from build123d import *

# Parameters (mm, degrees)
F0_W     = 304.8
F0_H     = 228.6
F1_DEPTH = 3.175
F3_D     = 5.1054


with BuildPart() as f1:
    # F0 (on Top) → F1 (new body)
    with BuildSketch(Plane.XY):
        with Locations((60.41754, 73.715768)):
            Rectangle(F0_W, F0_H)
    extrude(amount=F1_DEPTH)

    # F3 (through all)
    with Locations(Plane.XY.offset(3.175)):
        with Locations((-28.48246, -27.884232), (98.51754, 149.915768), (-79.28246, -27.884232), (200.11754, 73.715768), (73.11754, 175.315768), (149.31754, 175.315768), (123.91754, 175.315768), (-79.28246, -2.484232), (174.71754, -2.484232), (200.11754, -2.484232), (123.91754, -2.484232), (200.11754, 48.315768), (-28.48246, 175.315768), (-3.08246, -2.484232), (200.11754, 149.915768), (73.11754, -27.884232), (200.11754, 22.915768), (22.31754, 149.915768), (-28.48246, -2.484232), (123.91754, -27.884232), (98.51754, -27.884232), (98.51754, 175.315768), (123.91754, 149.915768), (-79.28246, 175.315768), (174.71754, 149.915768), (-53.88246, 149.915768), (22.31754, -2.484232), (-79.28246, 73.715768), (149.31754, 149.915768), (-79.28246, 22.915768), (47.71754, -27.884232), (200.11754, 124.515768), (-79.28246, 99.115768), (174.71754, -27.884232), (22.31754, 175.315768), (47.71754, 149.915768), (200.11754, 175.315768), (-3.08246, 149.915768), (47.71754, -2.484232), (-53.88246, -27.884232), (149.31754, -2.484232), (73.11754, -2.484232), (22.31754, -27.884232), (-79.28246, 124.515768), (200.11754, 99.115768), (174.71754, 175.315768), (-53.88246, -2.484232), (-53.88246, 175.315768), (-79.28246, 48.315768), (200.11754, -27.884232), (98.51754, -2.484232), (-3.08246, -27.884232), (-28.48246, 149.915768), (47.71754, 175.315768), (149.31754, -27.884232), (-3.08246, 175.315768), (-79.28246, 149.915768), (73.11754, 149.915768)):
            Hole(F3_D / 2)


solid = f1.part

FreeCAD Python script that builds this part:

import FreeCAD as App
import Part
import Sketcher
Q = App.Units.Quantity


def add_polygon(sketch, points):
    """Adds a closed chain of lines whose ends are joined by coincident constraints."""
    first, n = sketch.GeometryCount, len(points)
    for a, b in zip(points, points[1:] + points[:1]):
        sketch.addGeometry(Part.LineSegment(App.Vector(*a, 0), App.Vector(*b, 0)), False)
    for i in range(n):
        sketch.addConstraint(Sketcher.Constraint("Coincident", first + i, 2, first + (i + 1) % n, 1))

doc = App.newDocument("Part")
body = doc.addObject("PartDesign::Body", "Body")

sketch1 = body.newObject("Sketcher::SketchObject", "Sketch")
sketch1.AttachmentSupport = (doc.getObject("XY_Plane"), [""])
sketch1.MapMode = "FlatFace"
add_polygon(sketch1, [(-92, 188), (-92, -41), (213, -41), (213, 188)])
sketch1.addConstraint([
    Sketcher.Constraint("Vertical", 0),
    Sketcher.Constraint("Horizontal", 1),
    Sketcher.Constraint("Vertical", 2),
    Sketcher.Constraint("Horizontal", 3),
    Sketcher.Constraint("DistanceX", 1, 1, 1, 2, Q("12 in")),
    Sketcher.Constraint("DistanceY", 0, 2, 0, 1, Q("9 in")),
    Sketcher.Constraint("DistanceX", 0, 2, -1, 1, Q("91.98246 mm")),
    Sketcher.Constraint("DistanceY", -1, 1, 2, 2, Q("188.015768 mm")),
])
pad1 = body.newObject("PartDesign::Pad", "Pad")
pad1.Profile = sketch1
pad1.Length = Q("0.125 in")

sketch2 = body.newObject("Sketcher::SketchObject", "Sketch001")
sketch2.AttachmentSupport = (doc.getObject("XY_Plane"), [""])
sketch2.MapMode = "FlatFace"
sketch2.AttachmentOffset = App.Placement(App.Vector(0, 0, 0.125 * 25.4), App.Rotation())
sketch2.addGeometry([
    Part.Circle(App.Vector(-28.5, -27.9, 0), App.Vector(0, 0, 1), 2.6),
    Part.Circle(App.Vector(98.5, 149.9, 0), App.Vector(0, 0, 1), 2.6),
    Part.Circle(App.Vector(-79.3, -27.9, 0), App.Vector(0, 0, 1), 2.6),
    Part.Circle(App.Vector(200.1, 73.7, 0), App.Vector(0, 0, 1), 2.6),
    Part.Circle(App.Vector(73.1, 175.3, 0), App.Vector(0, 0, 1), 2.6),
    Part.Circle(App.Vector(149.3, 175.3, 0), App.Vector(0, 0, 1), 2.6),
    Part.Circle(App.Vector(123.9, 175.3, 0), App.Vector(0, 0, 1), 2.6),
    Part.Circle(App.Vector(-79.3, -2.5, 0), App.Vector(0, 0, 1), 2.6),
    Part.Circle(App.Vector(174.7, -2.5, 0), App.Vector(0, 0, 1), 2.6),
    Part.Circle(App.Vector(200.1, -2.5, 0), App.Vector(0, 0, 1), 2.6),
    Part.Circle(App.Vector(123.9, -2.5, 0), App.Vector(0, 0, 1), 2.6),
    Part.Circle(App.Vector(200.1, 48.3, 0), App.Vector(0, 0, 1), 2.6),
    Part.Circle(App.Vector(-28.5, 175.3, 0), App.Vector(0, 0, 1), 2.6),
    Part.Circle(App.Vector(-3.1, -2.5, 0), App.Vector(0, 0, 1), 2.6),
    Part.Circle(App.Vector(200.1, 149.9, 0), App.Vector(0, 0, 1), 2.6),
    Part.Circle(App.Vector(73.1, -27.9, 0), App.Vector(0, 0, 1), 2.6),
    Part.Circle(App.Vector(200.1, 22.9, 0), App.Vector(0, 0, 1), 2.6),
    Part.Circle(App.Vector(22.3, 149.9, 0), App.Vector(0, 0, 1), 2.6),
    Part.Circle(App.Vector(-28.5, -2.5, 0), App.Vector(0, 0, 1), 2.6),
    Part.Circle(App.Vector(123.9, -27.9, 0), App.Vector(0, 0, 1), 2.6),
    Part.Circle(App.Vector(98.5, -27.9, 0), App.Vector(0, 0, 1), 2.6),
    Part.Circle(App.Vector(98.5, 175.3, 0), App.Vector(0, 0, 1), 2.6),
    Part.Circle(App.Vector(123.9, 149.9, 0), App.Vector(0, 0, 1), 2.6),
    Part.Circle(App.Vector(-79.3, 175.3, 0), App.Vector(0, 0, 1), 2.6),
    Part.Circle(App.Vector(174.7, 149.9, 0), App.Vector(0, 0, 1), 2.6),
    Part.Circle(App.Vector(-53.9, 149.9, 0), App.Vector(0, 0, 1), 2.6),
    Part.Circle(App.Vector(22.3, -2.5, 0), App.Vector(0, 0, 1), 2.6),
    Part.Circle(App.Vector(-79.3, 73.7, 0), App.Vector(0, 0, 1), 2.6),
    Part.Circle(App.Vector(149.3, 149.9, 0), App.Vector(0, 0, 1), 2.6),
    Part.Circle(App.Vector(-79.3, 22.9, 0), App.Vector(0, 0, 1), 2.6),
    Part.Circle(App.Vector(47.7, -27.9, 0), App.Vector(0, 0, 1), 2.6),
    Part.Circle(App.Vector(200.1, 124.5, 0), App.Vector(0, 0, 1), 2.6),
    Part.Circle(App.Vector(-79.3, 99.1, 0), App.Vector(0, 0, 1), 2.6),
    Part.Circle(App.Vector(174.7, -27.9, 0), App.Vector(0, 0, 1), 2.6),
    Part.Circle(App.Vector(22.3, 175.3, 0), App.Vector(0, 0, 1), 2.6),
    Part.Circle(App.Vector(47.7, 149.9, 0), App.Vector(0, 0, 1), 2.6),
    Part.Circle(App.Vector(200.1, 175.3, 0), App.Vector(0, 0, 1), 2.6),
    Part.Circle(App.Vector(-3.1, 149.9, 0), App.Vector(0, 0, 1), 2.6),
    Part.Circle(App.Vector(47.7, -2.5, 0), App.Vector(0, 0, 1), 2.6),
    Part.Circle(App.Vector(-53.9, -27.9, 0), App.Vector(0, 0, 1), 2.6),
    Part.Circle(App.Vector(149.3, -2.5, 0), App.Vector(0, 0, 1), 2.6),
    Part.Circle(App.Vector(73.1, -2.5, 0), App.Vector(0, 0, 1), 2.6),
    Part.Circle(App.Vector(22.3, -27.9, 0), App.Vector(0, 0, 1), 2.6),
    Part.Circle(App.Vector(-79.3, 124.5, 0), App.Vector(0, 0, 1), 2.6),
    Part.Circle(App.Vector(200.1, 99.1, 0), App.Vector(0, 0, 1), 2.6),
    Part.Circle(App.Vector(174.7, 175.3, 0), App.Vector(0, 0, 1), 2.6),
    Part.Circle(App.Vector(-53.9, -2.5, 0), App.Vector(0, 0, 1), 2.6),
    Part.Circle(App.Vector(-53.9, 175.3, 0), App.Vector(0, 0, 1), 2.6),
    Part.Circle(App.Vector(-79.3, 48.3, 0), App.Vector(0, 0, 1), 2.6),
    Part.Circle(App.Vector(200.1, -27.9, 0), App.Vector(0, 0, 1), 2.6),
    Part.Circle(App.Vector(98.5, -2.5, 0), App.Vector(0, 0, 1), 2.6),
    Part.Circle(App.Vector(-3.1, -27.9, 0), App.Vector(0, 0, 1), 2.6),
    Part.Circle(App.Vector(-28.5, 149.9, 0), App.Vector(0, 0, 1), 2.6),
    Part.Circle(App.Vector(47.7, 175.3, 0), App.Vector(0, 0, 1), 2.6),
    Part.Circle(App.Vector(149.3, -27.9, 0), App.Vector(0, 0, 1), 2.6),
    Part.Circle(App.Vector(-3.1, 175.3, 0), App.Vector(0, 0, 1), 2.6),
    Part.Circle(App.Vector(-79.3, 149.9, 0), App.Vector(0, 0, 1), 2.6),
    Part.Circle(App.Vector(73.1, 149.9, 0), App.Vector(0, 0, 1), 2.6),
], False)
sketch2.addConstraint([
    Sketcher.Constraint("Equal", 0, 1),
    Sketcher.Constraint("Equal", 1, 2),
    Sketcher.Constraint("Equal", 2, 3),
    Sketcher.Constraint("Equal", 3, 4),
    Sketcher.Constraint("Equal", 4, 5),
    Sketcher.Constraint("Equal", 5, 6),
    Sketcher.Constraint("Equal", 6, 7),
    Sketcher.Constraint("Equal", 7, 8),
    Sketcher.Constraint("Equal", 8, 9),
    Sketcher.Constraint("Equal", 9, 10),
    Sketcher.Constraint("Equal", 10, 11),
    Sketcher.Constraint("Equal", 11, 12),
    Sketcher.Constraint("Equal", 12, 13),
    Sketcher.Constraint("Equal", 13, 14),
    Sketcher.Constraint("Equal", 14, 15),
    Sketcher.Constraint("Equal", 15, 16),
    Sketcher.Constraint("Equal", 16, 17),
    Sketcher.Constraint("Equal", 17, 18),
    Sketcher.Constraint("Equal", 18, 19),
    Sketcher.Constraint("Equal", 19, 20),
    Sketcher.Constraint("Equal", 20, 21),
    Sketcher.Constraint("Equal", 21, 22),
    Sketcher.Constraint("Equal", 22, 23),
    Sketcher.Constraint("Equal", 23, 24),
    Sketcher.Constraint("Equal", 24, 25),
    Sketcher.Constraint("Equal", 25, 26),
    Sketcher.Constraint("Equal", 26, 27),
    Sketcher.Constraint("Equal", 27, 28),
    Sketcher.Constraint("Equal", 28, 29),
    Sketcher.Constraint("Equal", 29, 30),
    Sketcher.Constraint("Equal", 30, 31),
    Sketcher.Constraint("Equal", 31, 32),
    Sketcher.Constraint("Equal", 32, 33),
    Sketcher.Constraint("Equal", 33, 34),
    Sketcher.Constraint("Equal", 34, 35),
    Sketcher.Constraint("Equal", 35, 36),
    Sketcher.Constraint("Equal", 36, 37),
    Sketcher.Constraint("Equal", 37, 38),
    Sketcher.Constraint("Equal", 38, 39),
    Sketcher.Constraint("Equal", 39, 40),
    Sketcher.Constraint("Equal", 40, 41),
    Sketcher.Constraint("Equal", 41, 42),
    Sketcher.Constraint("Equal", 42, 43),
    Sketcher.Constraint("Equal", 43, 44),
    Sketcher.Constraint("Equal", 44, 45),
    Sketcher.Constraint("Equal", 45, 46),
    Sketcher.Constraint("Equal", 46, 47),
    Sketcher.Constraint("Equal", 47, 48),
    Sketcher.Constraint("Equal", 48, 49),
    Sketcher.Constraint("Equal", 49, 50),
    Sketcher.Constraint("Equal", 50, 51),
    Sketcher.Constraint("Equal", 51, 52),
    Sketcher.Constraint("Equal", 52, 53),
    Sketcher.Constraint("Equal", 53, 54),
    Sketcher.Constraint("Equal", 54, 55),
    Sketcher.Constraint("Equal", 55, 56),
    Sketcher.Constraint("Equal", 56, 57),
    Sketcher.Constraint("Horizontal", 0, 3, 2, 3),
    Sketcher.Constraint("Horizontal", 4, 3, 5, 3),
    Sketcher.Constraint("Horizontal", 5, 3, 6, 3),
    Sketcher.Constraint("Horizontal", 7, 3, 8, 3),
    Sketcher.Constraint("Horizontal", 8, 3, 9, 3),
    Sketcher.Constraint("Horizontal", 9, 3, 10, 3),
    Sketcher.Constraint("Horizontal", 6, 3, 12, 3),
    Sketcher.Constraint("Horizontal", 10, 3, 13, 3),
    Sketcher.Constraint("Horizontal", 1, 3, 14, 3),
    Sketcher.Constraint("Horizontal", 2, 3, 15, 3),
    Sketcher.Constraint("Horizontal", 14, 3, 17, 3),
    Sketcher.Constraint("Horizontal", 13, 3, 18, 3),
    Sketcher.Constraint("Horizontal", 15, 3, 19, 3),
    Sketcher.Constraint("Horizontal", 19, 3, 20, 3),
    Sketcher.Constraint("Horizontal", 12, 3, 21, 3),
    Sketcher.Constraint("Horizontal", 17, 3, 22, 3),
    Sketcher.Constraint("Horizontal", 21, 3, 23, 3),
    Sketcher.Constraint("Horizontal", 22, 3, 24, 3),
    Sketcher.Constraint("Horizontal", 24, 3, 25, 3),
    Sketcher.Constraint("Horizontal", 18, 3, 26, 3),
    Sketcher.Constraint("Horizontal", 3, 3, 27, 3),
    Sketcher.Constraint("Horizontal", 25, 3, 28, 3),
    Sketcher.Constraint("Horizontal", 16, 3, 29, 3),
    Sketcher.Constraint("Horizontal", 20, 3, 30, 3),
    Sketcher.Constraint("Horizontal", 30, 3, 33, 3),
    Sketcher.Constraint("Horizontal", 23, 3, 34, 3),
    Sketcher.Constraint("Horizontal", 28, 3, 35, 3),
    Sketcher.Constraint("Horizontal", 34, 3, 36, 3),
    Sketcher.Constraint("Horizontal", 35, 3, 37, 3),
    Sketcher.Constraint("Horizontal", 26, 3, 38, 3),
    Sketcher.Constraint("Horizontal", 33, 3, 39, 3),
    Sketcher.Constraint("Horizontal", 38, 3, 40, 3),
    Sketcher.Constraint("Horizontal", 40, 3, 41, 3),
    Sketcher.Constraint("Horizontal", 39, 3, 42, 3),
    Sketcher.Constraint("Horizontal", 31, 3, 43, 3),
    Sketcher.Constraint("Horizontal", 32, 3, 44, 3),
    Sketcher.Constraint("Horizontal", 36, 3, 45, 3),
    Sketcher.Constraint("Horizontal", 41, 3, 46, 3),
    Sketcher.Constraint("Horizontal", 45, 3, 47, 3),
    Sketcher.Constraint("Horizontal", 11, 3, 48, 3),
    Sketcher.Constraint("Horizontal", 42, 3, 49, 3),
    Sketcher.Constraint("Horizontal", 46, 3, 50, 3),
    Sketcher.Constraint("Horizontal", 49, 3, 51, 3),
    Sketcher.Constraint("Horizontal", 37, 3, 52, 3),
    Sketcher.Constraint("Horizontal", 47, 3, 53, 3),
    Sketcher.Constraint("Horizontal", 51, 3, 54, 3),
    Sketcher.Constraint("Horizontal", 53, 3, 55, 3),
    Sketcher.Constraint("Horizontal", 52, 3, 56, 3),
    Sketcher.Constraint("Horizontal", 56, 3, 57, 3),
    Sketcher.Constraint("Vertical", 2, 3, 7, 3),
    Sketcher.Constraint("Vertical", 3, 3, 9, 3),
    Sketcher.Constraint("Vertical", 6, 3, 10, 3),
    Sketcher.Constraint("Vertical", 9, 3, 11, 3),
    Sketcher.Constraint("Vertical", 0, 3, 12, 3),
    Sketcher.Constraint("Vertical", 11, 3, 14, 3),
    Sketcher.Constraint("Vertical", 4, 3, 15, 3),
    Sketcher.Constraint("Vertical", 14, 3, 16, 3),
    Sketcher.Constraint("Vertical", 12, 3, 18, 3),
    Sketcher.Constraint("Vertical", 10, 3, 19, 3),
    Sketcher.Constraint("Vertical", 1, 3, 20, 3),
    Sketcher.Constraint("Vertical", 20, 3, 21, 3),
    Sketcher.Constraint("Vertical", 19, 3, 22, 3),
    Sketcher.Constraint("Vertical", 7, 3, 23, 3),
    Sketcher.Constraint("Vertical", 8, 3, 24, 3),
    Sketcher.Constraint("Vertical", 17, 3, 26, 3),
    Sketcher.Constraint("Vertical", 23, 3, 27, 3),
    Sketcher.Constraint("Vertical", 5, 3, 28, 3),
    Sketcher.Constraint("Vertical", 27, 3, 29, 3),
    Sketcher.Constraint("Vertical", 16, 3, 31, 3),
    Sketcher.Constraint("Vertical", 29, 3, 32, 3),
    Sketcher.Constraint("Vertical", 24, 3, 33, 3),
    Sketcher.Constraint("Vertical", 26, 3, 34, 3),
    Sketcher.Constraint("Vertical", 30, 3, 35, 3),
    Sketcher.Constraint("Vertical", 31, 3, 36, 3),
    Sketcher.Constraint("Vertical", 13, 3, 37, 3),
    Sketcher.Constraint("Vertical", 35, 3, 38, 3),
    Sketcher.Constraint("Vertical", 25, 3, 39, 3),
    Sketcher.Constraint("Vertical", 28, 3, 40, 3),
    Sketcher.Constraint("Vertical", 15, 3, 41, 3),
    Sketcher.Constraint("Vertical", 34, 3, 42, 3),
    Sketcher.Constraint("Vertical", 32, 3, 43, 3),
    Sketcher.Constraint("Vertical", 36, 3, 44, 3),
    Sketcher.Constraint("Vertical", 33, 3, 45, 3),
    Sketcher.Constraint("Vertical", 39, 3, 46, 3),
    Sketcher.Constraint("Vertical", 46, 3, 47, 3),
    Sketcher.Constraint("Vertical", 43, 3, 48, 3),
    Sketcher.Constraint("Vertical", 44, 3, 49, 3),
    Sketcher.Constraint("Vertical", 21, 3, 50, 3),
    Sketcher.Constraint("Vertical", 37, 3, 51, 3),
    Sketcher.Constraint("Vertical", 18, 3, 52, 3),
    Sketcher.Constraint("Vertical", 38, 3, 53, 3),
    Sketcher.Constraint("Vertical", 40, 3, 54, 3),
    Sketcher.Constraint("Vertical", 51, 3, 55, 3),
    Sketcher.Constraint("Vertical", 48, 3, 56, 3),
    Sketcher.Constraint("Vertical", 41, 3, 57, 3),
    Sketcher.Constraint("Diameter", 0, Q("0.201 in")),
    Sketcher.Constraint("DistanceX", 0, 3, 1, 3, Q("5 in")),
    Sketcher.Constraint("DistanceY", 0, 3, 1, 3, Q("7 in")),
    Sketcher.Constraint("DistanceX", 2, 3, 0, 3, Q("2 in")),
    Sketcher.Constraint("DistanceX", 1, 3, 3, 3, Q("4 in")),
    Sketcher.Constraint("DistanceY", 3, 3, 1, 3, Q("3 in")),
    Sketcher.Constraint("DistanceX", 4, 3, 1, 3, Q("1 in")),
    Sketcher.Constraint("DistanceY", 1, 3, 4, 3, Q("1 in")),
    Sketcher.Constraint("DistanceX", 1, 3, 5, 3, Q("2 in")),
    Sketcher.Constraint("DistanceX", 6, 3, 5, 3, Q("1 in")),
    Sketcher.Constraint("DistanceY", 2, 3, 7, 3, Q("1 in")),
    Sketcher.Constraint("DistanceX", 8, 3, 3, 3, Q("1 in")),
    Sketcher.Constraint("DistanceY", 11, 3, 3, 3, Q("1 in")),
    Sketcher.Constraint("DistanceX", 0, 3, 13, 3, Q("1 in")),
    Sketcher.Constraint("DistanceY", 9, 3, 16, 3, Q("1 in")),
    Sketcher.Constraint("DistanceX", 12, 3, 17, 3, Q("2 in")),
    Sketcher.Constraint("DistanceX", 25, 3, 12, 3, Q("1 in")),
    Sketcher.Constraint("DistanceX", 30, 3, 15, 3, Q("1 in")),
    Sketcher.Constraint("DistanceY", 31, 3, 14, 3, Q("1 in")),
    Sketcher.Constraint("DistanceY", 27, 3, 32, 3, Q("1 in")),
    Sketcher.Constraint("DistanceX", 0, 3, -1, 1, Q("28.48246 mm")),
    Sketcher.Constraint("DistanceY", -1, 1, 1, 3, Q("149.915768 mm")),
])
doc.recompute()
hole = body.newObject("PartDesign::Hole", "Hole")
hole.Profile = sketch2
hole.ThreadType = "None"
hole.Diameter = Q("0.201 in")
hole.DepthType = "ThroughAll"

doc.recompute()
